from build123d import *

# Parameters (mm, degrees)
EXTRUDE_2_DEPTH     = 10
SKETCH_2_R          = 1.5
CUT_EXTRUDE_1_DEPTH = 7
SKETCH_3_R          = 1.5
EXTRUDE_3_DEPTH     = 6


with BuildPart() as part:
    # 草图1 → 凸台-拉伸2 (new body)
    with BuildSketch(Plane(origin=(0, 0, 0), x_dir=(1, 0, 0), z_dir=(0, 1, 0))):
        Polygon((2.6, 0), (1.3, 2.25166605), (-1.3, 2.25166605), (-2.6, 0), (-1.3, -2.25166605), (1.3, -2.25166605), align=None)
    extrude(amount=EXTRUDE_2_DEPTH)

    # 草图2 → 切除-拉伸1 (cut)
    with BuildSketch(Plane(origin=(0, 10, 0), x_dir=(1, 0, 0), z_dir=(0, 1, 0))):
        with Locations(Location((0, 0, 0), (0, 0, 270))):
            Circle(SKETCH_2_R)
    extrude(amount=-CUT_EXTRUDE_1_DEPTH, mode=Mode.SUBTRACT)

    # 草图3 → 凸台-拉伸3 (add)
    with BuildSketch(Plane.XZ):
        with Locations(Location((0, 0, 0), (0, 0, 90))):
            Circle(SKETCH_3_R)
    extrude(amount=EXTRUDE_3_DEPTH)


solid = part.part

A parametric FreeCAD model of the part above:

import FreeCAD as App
import Part
import Sketcher

V = App.Vector
Q = App.Units.Quantity

doc = App.newDocument("Part")
body = doc.addObject("PartDesign::Body", "Body")

sketch1 = body.newObject("Sketcher::SketchObject", "Sketch")
sketch1.AttachmentSupport = (doc.getObject("XZ_Plane"), [""])
sketch1.MapMode = "FlatFace"
sketch1.addGeometry([
    Part.LineSegment(V(2.6, 0, 0), V(1.3, -2.251666, 0)),
    Part.LineSegment(V(1.3, -2.251666, 0), V(-1.3, -2.251666, 0)),
    Part.LineSegment(V(-1.3, -2.251666, 0), V(-2.6, 0, 0)),
    Part.LineSegment(V(-2.6, 0, 0), V(-1.3, 2.251666, 0)),
    Part.LineSegment(V(-1.3, 2.251666, 0), V(1.3, 2.251666, 0)),
    Part.LineSegment(V(1.3, 2.251666, 0), V(2.6, 0, 0)),
], False)
sketch1.addConstraint([
    Sketcher.Constraint("Coincident", 0, 2, 1, 1),
    Sketcher.Constraint("Coincident", 1, 2, 2, 1),
    Sketcher.Constraint("Coincident", 2, 2, 3, 1),
    Sketcher.Constraint("Coincident", 3, 2, 4, 1),
    Sketcher.Constraint("Coincident", 4, 2, 5, 1),
    Sketcher.Constraint("Coincident", 5, 2, 0, 1),
    Sketcher.Constraint("Horizontal", 1),
    Sketcher.Constraint("Horizontal", 4),
    Sketcher.Constraint("Symmetric", 0, 2, 3, 2, -1, 1),
    Sketcher.Constraint("Symmetric", 2, 2, 5, 2, -1, 1),
    Sketcher.Constraint("PointOnObject", 2, 2, -1),
    Sketcher.Constraint("Parallel", 2, 5),
    Sketcher.Constraint("Vertical", 1, 2, 3, 2),
    Sketcher.Constraint("Angle", 0, Q("-120 deg")),
    Sketcher.Constraint("DistanceX", 1, 2, 1, 1, Q("2.6 mm")),
    Sketcher.Constraint("Distance", 0, Q("2.6 mm")),
])
pad1 = body.newObject("PartDesign::Pad", "Pad")
pad1.Profile = sketch1
pad1.Length = 10
pad1.Reversed = True

sketch2 = body.newObject("Sketcher::SketchObject", "Sketch001")
sketch2.AttachmentSupport = (doc.getObject("XZ_Plane"), [""])
sketch2.MapMode = "FlatFace"
sketch2.AttachmentOffset = App.Placement(V(0, 0, -10), App.Rotation())
sketch2.addGeometry(Part.Circle(V(0, 0, 0), V(0, 0, 1), 1.5), False)
sketch2.addConstraint([
    Sketcher.Constraint("Coincident", 0, 3, -1, 1),
    Sketcher.Constraint("Diameter", 0, Q("3 mm")),
])
pocket1 = body.newObject("PartDesign::Pocket", "Pocket")
pocket1.Profile = sketch2
pocket1.Length = 7
pocket1.Reversed = True

sketch3 = body.newObject("Sketcher::SketchObject", "Sketch002")
sketch3.AttachmentSupport = (doc.getObject("XZ_Plane"), [""])
sketch3.MapMode = "FlatFace"
sketch3.addGeometry(Part.Circle(V(0, 0, 0), V(0, 0, 1), 1.5), False)
sketch3.addConstraint([
    Sketcher.Constraint("Coincident", 0, 3, -1, 1),
    Sketcher.Constraint("Diameter", 0, Q("3 mm")),
])
pad2 = body.newObject("PartDesign::Pad", "Pad001")
pad2.Profile = sketch3
pad2.Length = 6

doc.recompute()
